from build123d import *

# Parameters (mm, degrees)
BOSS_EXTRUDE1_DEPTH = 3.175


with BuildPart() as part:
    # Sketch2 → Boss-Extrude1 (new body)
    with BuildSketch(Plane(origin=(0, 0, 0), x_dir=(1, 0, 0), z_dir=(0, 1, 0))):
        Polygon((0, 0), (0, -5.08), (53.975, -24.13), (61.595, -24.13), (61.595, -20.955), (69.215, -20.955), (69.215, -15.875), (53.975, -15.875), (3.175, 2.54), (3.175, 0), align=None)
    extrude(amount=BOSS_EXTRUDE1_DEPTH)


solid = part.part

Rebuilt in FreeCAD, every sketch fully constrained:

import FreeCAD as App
import Part
import Sketcher

V = App.Vector
Q = App.Units.Quantity

doc = App.newDocument("Part")
body = doc.addObject("PartDesign::Body", "Body")

sketch1 = body.newObject("Sketcher::SketchObject", "Sketch")
sketch1.AttachmentSupport = (doc.getObject("XZ_Plane"), [""])
sketch1.MapMode = "FlatFace"
sketch1.addGeometry([
    Part.LineSegment(V(0, 0, 0), V(0, 5.1, 0)),
    Part.LineSegment(V(0, 5.1, 0), V(54, 24.1, 0)),
    Part.LineSegment(V(54, 24.1, 0), V(61.6, 24.1, 0)),
    Part.LineSegment(V(61.6, 24.1, 0), V(61.6, 21, 0)),
    Part.LineSegment(V(61.6, 21, 0), V(69.2, 21, 0)),
    Part.LineSegment(V(69.2, 21, 0), V(69.2, 15.9, 0)),
    Part.LineSegment(V(69.2, 15.9, 0), V(54, 15.9, 0)),
    Part.LineSegment(V(54, 15.9, 0), V(3.2, -2.5, 0)),
    Part.LineSegment(V(3.2, -2.5, 0), V(3.2, 0, 0)),
    Part.LineSegment(V(3.2, 0, 0), V(0, 0, 0)),
], False)
sketch1.addConstraint([
    Sketcher.Constraint("Coincident", 0, 2, 1, 1),
    Sketcher.Constraint("Coincident", 1, 2, 2, 1),
    Sketcher.Constraint("Coincident", 2, 2, 3, 1),
    Sketcher.Constraint("Coincident", 3, 2, 4, 1),
    Sketcher.Constraint("Coincident", 4, 2, 5, 1),
    Sketcher.Constraint("Coincident", 5, 2, 6, 1),
    Sketcher.Constraint("Coincident", 6, 2, 7, 1),
    Sketcher.Constraint("Coincident", 7, 2, 8, 1),
    Sketcher.Constraint("Coincident", 8, 2, 9, 1),
    Sketcher.Constraint("Coincident", 9, 2, 0, 1),
    Sketcher.Constraint("Vertical", 0),
    Sketcher.Constraint("Horizontal", 2),
    Sketcher.Constraint("Vertical", 3),
    Sketcher.Constraint("Horizontal", 4),
    Sketcher.Constraint("Vertical", 5),
    Sketcher.Constraint("Horizontal", 6),
    Sketcher.Constraint("Vertical", 8),
    Sketcher.Constraint("Horizontal", 9),
    Sketcher.Constraint("Coincident", 9, 2, -1, 1),
    Sketcher.Constraint("Vertical", 1, 2, 6, 2),
    Sketcher.Constraint("Equal", 2, 4),
    Sketcher.Constraint("Equal", 9, 3),
    Sketcher.Constraint("Equal", 0, 5),
    Sketcher.Constraint("DistanceX", 2, 1, 2, 2, Q("0.3 in")),
    Sketcher.Constraint("DistanceY", 0, 1, 0, 2, Q("0.2 in")),
    Sketcher.Constraint("DistanceY", 8, 1, 8, 2, Q("0.1 in")),
    Sketcher.Constraint("DistanceX", 7, 2, 6, 2, Q("2 in")),
    Sketcher.Constraint("DistanceX", 9, 2, 9, 1, Q("0.125 in")),
    Sketcher.Constraint("DistanceY", -1, 1, 1, 2, Q("0.95 in")),
])
pad1 = body.newObject("PartDesign::Pad", "Pad")
pad1.Profile = sketch1
pad1.Length = Q("0.125 in")
pad1.Reversed = True

doc.recompute()
